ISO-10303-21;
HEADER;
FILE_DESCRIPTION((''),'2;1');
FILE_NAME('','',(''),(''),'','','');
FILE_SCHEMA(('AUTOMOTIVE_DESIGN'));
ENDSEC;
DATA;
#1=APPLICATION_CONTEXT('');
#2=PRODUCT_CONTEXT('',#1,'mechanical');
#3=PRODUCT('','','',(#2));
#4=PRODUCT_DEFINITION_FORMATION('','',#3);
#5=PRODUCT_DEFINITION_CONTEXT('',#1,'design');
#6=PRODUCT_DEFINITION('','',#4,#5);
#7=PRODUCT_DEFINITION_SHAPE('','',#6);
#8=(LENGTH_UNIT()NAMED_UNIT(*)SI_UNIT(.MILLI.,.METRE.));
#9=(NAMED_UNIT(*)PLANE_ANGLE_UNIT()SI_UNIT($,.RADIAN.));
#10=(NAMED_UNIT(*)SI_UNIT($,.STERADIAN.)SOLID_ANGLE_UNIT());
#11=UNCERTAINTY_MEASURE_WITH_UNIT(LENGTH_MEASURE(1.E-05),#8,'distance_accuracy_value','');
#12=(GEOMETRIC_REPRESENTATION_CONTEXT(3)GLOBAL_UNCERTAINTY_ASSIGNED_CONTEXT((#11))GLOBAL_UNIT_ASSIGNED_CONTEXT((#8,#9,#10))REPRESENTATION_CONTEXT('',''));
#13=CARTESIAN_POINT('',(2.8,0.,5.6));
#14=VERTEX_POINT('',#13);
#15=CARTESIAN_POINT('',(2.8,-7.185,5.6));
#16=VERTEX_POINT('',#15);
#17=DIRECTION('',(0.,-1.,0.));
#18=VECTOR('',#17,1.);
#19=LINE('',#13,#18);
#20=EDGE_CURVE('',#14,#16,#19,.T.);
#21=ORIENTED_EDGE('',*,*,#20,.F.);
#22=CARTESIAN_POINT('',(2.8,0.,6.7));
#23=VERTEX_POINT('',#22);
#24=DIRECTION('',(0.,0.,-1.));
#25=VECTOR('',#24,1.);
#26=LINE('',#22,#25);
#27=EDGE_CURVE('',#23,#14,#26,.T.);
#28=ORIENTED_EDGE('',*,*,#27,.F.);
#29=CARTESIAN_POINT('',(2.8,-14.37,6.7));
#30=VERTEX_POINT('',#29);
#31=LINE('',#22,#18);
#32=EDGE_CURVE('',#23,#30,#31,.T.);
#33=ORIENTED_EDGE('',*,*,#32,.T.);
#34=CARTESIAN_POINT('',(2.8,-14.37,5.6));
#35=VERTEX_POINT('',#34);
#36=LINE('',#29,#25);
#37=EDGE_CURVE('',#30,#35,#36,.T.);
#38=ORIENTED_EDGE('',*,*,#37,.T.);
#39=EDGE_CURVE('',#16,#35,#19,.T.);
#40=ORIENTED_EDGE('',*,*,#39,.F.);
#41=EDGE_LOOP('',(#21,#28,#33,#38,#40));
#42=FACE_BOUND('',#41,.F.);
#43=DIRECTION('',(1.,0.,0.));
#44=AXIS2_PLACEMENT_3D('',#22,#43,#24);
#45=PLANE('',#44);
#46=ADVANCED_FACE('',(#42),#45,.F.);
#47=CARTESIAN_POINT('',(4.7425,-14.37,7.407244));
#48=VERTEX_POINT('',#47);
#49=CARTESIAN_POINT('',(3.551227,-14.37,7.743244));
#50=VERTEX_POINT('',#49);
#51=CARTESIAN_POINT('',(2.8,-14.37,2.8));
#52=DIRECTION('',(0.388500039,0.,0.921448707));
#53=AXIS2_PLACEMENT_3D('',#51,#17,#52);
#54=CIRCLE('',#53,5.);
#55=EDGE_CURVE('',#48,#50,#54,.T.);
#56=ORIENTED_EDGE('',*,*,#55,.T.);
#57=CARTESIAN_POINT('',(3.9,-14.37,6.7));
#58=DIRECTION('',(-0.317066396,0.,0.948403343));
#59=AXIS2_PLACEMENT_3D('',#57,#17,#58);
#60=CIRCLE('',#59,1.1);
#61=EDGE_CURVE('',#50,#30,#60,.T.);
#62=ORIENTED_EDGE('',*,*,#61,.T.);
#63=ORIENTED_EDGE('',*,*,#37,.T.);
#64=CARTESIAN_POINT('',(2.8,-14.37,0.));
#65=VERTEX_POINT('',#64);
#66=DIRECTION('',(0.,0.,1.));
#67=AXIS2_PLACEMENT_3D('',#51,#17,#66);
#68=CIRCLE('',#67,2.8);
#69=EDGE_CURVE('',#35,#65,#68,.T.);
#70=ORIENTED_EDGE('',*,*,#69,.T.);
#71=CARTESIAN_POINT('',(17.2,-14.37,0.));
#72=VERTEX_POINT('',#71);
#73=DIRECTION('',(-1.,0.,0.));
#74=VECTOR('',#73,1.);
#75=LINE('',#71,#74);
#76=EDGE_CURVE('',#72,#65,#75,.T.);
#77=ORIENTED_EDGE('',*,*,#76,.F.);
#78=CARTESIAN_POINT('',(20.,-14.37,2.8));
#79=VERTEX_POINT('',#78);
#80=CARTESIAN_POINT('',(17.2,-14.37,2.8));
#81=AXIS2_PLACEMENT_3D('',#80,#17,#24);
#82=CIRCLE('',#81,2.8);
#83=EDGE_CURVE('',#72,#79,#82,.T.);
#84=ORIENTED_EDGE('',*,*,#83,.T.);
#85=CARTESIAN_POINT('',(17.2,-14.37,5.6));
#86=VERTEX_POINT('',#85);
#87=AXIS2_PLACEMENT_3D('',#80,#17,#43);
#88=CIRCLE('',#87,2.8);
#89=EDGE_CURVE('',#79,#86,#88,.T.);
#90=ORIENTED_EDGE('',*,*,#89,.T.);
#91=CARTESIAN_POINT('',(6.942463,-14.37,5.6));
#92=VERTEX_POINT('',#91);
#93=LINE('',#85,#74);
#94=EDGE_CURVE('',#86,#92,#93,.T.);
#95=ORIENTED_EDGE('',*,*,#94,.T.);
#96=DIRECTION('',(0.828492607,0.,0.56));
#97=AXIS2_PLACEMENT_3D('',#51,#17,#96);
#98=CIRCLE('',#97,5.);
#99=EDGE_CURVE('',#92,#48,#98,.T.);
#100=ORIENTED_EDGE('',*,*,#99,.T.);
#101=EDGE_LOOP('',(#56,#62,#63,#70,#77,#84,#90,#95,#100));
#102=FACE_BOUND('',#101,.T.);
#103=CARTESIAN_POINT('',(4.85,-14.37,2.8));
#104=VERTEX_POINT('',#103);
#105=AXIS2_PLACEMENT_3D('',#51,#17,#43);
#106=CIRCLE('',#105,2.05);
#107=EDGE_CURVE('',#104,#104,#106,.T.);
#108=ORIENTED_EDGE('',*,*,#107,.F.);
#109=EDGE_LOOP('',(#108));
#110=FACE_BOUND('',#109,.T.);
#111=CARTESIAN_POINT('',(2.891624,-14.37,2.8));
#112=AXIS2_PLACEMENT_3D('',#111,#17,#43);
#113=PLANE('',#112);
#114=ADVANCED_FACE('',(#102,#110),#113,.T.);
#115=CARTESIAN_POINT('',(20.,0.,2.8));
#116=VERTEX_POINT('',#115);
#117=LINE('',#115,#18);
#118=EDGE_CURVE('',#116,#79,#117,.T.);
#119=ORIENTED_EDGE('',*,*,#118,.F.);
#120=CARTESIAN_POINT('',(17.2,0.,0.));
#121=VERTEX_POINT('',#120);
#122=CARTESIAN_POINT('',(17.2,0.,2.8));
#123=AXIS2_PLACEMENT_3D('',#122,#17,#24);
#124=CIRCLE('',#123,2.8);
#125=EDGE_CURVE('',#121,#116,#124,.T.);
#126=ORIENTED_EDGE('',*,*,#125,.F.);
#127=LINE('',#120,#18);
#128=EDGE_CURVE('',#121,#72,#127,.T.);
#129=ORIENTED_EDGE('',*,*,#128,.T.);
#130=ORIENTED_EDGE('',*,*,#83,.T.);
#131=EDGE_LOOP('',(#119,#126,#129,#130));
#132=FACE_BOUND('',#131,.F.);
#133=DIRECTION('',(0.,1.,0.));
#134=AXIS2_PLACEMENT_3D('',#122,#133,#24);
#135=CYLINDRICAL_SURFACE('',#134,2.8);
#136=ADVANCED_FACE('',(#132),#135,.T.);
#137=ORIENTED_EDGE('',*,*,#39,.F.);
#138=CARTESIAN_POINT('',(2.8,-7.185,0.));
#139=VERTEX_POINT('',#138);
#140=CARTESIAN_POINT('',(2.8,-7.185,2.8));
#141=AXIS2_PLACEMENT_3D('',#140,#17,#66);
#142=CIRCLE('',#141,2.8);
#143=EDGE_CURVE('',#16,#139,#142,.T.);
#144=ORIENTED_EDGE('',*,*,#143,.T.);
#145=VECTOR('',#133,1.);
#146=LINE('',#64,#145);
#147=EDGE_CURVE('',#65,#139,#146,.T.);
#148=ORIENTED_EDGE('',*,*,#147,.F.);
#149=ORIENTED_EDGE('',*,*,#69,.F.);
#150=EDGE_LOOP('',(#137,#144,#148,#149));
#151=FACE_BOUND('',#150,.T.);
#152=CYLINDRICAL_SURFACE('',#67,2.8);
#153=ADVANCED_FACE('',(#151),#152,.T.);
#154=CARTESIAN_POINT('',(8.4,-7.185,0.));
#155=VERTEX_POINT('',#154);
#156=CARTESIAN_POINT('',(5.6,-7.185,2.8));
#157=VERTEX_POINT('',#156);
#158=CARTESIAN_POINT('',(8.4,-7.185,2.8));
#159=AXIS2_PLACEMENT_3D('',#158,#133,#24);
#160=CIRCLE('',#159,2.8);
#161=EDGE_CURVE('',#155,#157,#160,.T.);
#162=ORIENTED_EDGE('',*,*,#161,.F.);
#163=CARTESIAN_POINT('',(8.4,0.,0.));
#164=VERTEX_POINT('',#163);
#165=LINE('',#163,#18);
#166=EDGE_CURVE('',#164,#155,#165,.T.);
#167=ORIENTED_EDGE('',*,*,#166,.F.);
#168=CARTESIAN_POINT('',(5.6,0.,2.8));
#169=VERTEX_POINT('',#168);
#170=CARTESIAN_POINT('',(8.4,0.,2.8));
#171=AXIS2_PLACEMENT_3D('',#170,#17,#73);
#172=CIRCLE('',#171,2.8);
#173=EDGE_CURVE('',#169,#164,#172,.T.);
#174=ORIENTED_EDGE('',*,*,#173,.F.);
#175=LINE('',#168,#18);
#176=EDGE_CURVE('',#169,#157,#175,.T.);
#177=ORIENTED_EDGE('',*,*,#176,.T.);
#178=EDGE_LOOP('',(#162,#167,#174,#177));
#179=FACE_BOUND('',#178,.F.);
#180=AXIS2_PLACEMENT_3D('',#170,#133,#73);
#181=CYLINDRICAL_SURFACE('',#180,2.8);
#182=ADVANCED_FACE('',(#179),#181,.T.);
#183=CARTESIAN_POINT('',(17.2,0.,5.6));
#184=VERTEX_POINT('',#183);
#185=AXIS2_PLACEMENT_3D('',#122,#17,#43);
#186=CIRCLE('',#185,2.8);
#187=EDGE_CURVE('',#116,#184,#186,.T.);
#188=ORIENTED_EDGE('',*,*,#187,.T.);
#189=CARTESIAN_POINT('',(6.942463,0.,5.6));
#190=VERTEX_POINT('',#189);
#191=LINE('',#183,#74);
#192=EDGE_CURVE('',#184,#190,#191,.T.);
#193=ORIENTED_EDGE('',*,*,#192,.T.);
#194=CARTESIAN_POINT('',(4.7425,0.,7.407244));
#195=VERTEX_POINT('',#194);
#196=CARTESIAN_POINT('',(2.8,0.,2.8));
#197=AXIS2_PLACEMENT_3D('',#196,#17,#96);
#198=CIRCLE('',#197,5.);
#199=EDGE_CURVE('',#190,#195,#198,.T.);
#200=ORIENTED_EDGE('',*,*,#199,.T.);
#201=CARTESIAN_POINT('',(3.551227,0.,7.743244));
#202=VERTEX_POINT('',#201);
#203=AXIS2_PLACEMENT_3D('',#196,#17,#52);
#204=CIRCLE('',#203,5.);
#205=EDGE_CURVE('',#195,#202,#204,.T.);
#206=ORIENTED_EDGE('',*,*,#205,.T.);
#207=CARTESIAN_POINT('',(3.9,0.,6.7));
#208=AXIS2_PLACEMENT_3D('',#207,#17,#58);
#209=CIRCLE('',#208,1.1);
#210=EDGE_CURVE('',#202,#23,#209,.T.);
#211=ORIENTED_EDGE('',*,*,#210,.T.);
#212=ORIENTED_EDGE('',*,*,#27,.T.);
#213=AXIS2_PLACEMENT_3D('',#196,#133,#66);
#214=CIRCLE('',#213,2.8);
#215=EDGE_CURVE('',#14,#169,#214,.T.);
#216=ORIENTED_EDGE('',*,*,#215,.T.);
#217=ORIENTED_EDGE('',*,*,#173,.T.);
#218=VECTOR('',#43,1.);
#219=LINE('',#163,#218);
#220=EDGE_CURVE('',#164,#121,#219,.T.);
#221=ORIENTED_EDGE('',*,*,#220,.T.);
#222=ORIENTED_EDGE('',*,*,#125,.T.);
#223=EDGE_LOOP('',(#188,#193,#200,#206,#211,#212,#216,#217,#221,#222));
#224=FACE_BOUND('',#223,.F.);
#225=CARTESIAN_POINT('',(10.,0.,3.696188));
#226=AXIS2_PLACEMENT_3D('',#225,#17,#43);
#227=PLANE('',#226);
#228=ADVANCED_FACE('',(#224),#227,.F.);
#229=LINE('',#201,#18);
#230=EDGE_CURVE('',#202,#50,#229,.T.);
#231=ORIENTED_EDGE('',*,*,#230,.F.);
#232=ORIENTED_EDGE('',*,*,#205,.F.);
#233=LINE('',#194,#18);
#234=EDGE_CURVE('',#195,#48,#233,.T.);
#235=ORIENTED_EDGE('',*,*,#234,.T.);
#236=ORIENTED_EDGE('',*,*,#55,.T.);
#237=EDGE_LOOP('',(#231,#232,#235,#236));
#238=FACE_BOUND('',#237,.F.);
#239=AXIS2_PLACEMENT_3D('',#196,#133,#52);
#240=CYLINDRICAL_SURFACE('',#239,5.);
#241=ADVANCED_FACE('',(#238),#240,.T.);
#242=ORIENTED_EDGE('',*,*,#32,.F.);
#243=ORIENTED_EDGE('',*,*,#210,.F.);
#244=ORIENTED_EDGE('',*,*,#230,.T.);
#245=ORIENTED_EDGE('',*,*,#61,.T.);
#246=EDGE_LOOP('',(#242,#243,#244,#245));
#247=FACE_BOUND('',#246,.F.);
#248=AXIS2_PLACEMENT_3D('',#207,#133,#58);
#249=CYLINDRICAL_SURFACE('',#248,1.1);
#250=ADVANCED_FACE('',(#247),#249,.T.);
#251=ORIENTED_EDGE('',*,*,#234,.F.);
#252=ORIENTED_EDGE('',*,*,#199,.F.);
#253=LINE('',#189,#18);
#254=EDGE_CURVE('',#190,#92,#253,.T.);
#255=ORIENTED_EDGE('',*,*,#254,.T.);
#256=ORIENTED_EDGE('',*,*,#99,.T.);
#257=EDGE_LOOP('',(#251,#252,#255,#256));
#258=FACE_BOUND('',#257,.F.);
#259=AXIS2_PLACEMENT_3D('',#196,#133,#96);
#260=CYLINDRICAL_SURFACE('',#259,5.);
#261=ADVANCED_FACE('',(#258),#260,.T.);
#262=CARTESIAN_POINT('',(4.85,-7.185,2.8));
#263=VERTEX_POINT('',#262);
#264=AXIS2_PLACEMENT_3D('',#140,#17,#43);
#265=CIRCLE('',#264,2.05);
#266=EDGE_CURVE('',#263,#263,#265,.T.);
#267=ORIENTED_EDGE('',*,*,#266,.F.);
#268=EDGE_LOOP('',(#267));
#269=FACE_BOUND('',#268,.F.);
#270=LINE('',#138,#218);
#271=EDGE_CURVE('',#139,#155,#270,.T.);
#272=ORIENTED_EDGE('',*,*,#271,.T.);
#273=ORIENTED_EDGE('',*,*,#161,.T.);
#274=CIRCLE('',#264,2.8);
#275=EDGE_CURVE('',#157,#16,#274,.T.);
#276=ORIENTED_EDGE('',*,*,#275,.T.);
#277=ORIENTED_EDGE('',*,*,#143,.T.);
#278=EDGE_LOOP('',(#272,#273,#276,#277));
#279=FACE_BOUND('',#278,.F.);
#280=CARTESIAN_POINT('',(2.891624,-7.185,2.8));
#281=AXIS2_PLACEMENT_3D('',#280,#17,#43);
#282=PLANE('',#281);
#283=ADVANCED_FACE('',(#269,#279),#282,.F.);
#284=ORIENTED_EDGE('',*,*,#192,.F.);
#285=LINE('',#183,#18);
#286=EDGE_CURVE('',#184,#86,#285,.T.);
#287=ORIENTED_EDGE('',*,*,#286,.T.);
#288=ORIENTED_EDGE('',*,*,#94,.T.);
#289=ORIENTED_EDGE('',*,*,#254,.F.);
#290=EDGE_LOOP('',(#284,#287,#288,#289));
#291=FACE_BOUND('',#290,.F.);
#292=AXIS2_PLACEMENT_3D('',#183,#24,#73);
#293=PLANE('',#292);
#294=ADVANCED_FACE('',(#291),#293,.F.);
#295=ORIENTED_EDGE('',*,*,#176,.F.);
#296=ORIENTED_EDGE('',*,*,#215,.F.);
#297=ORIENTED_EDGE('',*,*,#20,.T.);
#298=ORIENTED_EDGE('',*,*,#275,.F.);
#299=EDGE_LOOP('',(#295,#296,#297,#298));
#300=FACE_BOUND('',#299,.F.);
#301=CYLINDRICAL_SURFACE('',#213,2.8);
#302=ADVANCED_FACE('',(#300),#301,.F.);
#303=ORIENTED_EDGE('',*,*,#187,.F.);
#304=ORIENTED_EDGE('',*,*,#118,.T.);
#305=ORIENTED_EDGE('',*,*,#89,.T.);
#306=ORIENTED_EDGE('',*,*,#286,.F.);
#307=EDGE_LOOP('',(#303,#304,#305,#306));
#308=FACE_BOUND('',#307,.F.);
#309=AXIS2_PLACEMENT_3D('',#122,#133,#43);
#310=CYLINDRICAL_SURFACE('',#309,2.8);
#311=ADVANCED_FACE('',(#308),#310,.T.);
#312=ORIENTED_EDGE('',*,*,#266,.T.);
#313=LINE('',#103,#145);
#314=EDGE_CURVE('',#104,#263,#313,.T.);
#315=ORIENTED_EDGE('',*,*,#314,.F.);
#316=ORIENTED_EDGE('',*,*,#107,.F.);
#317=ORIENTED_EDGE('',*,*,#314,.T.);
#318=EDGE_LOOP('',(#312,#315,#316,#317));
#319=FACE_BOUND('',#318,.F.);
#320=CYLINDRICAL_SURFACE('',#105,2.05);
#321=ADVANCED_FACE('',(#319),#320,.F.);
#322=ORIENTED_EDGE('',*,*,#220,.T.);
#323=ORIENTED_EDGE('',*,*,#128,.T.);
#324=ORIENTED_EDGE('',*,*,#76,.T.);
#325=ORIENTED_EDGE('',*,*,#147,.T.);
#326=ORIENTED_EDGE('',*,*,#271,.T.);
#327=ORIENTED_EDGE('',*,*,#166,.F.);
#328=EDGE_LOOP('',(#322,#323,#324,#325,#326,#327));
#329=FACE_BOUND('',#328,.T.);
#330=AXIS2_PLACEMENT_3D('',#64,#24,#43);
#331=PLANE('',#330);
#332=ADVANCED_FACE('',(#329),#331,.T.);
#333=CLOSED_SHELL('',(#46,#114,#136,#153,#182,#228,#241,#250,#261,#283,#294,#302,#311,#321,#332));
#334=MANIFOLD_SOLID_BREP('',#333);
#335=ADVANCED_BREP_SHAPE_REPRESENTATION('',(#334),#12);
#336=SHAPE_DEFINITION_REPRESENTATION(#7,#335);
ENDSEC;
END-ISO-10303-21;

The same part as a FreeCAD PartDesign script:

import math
import FreeCAD as App
import Part
import Sketcher
from FreeCAD import Vector

doc = App.newDocument("Part")
body = doc.addObject("PartDesign::Body", "Body")

sketch1 = doc.addObject("Sketcher::SketchObject", "Sketch")
body.addObject(sketch1)
sketch1.AttachmentSupport = (doc.XZ_Plane, [""])
sketch1.MapMode = "FlatFace"
sketch1.addGeometry(Part.ArcOfCircle(Part.Circle(Vector(8.4, 2.8, 0), Vector(0, 0, 1), 2.8), math.radians(180), math.radians(270)), False)
sketch1.addGeometry(Part.LineSegment(Vector(8.4, 0, 0), Vector(17.2, 0, 0)), False)
sketch1.addGeometry(Part.ArcOfCircle(Part.Circle(Vector(17.2, 2.8, 0), Vector(0, 0, 1), 2.8), math.radians(-90), math.radians(0)), False)
sketch1.addGeometry(Part.ArcOfCircle(Part.Circle(Vector(17.2, 2.8, 0), Vector(0, 0, 1), 2.8), math.radians(0), math.radians(90)), False)
sketch1.addGeometry(Part.LineSegment(Vector(17.2, 5.6, 0), Vector(6.942463, 5.6, 0)), False)
sketch1.addGeometry(Part.ArcOfCircle(Part.Circle(Vector(2.8, 2.8, 0), Vector(0, 0, 1), 5), math.radians(34.055798), math.radians(67.1388)), False)
sketch1.addGeometry(Part.ArcOfCircle(Part.Circle(Vector(2.8, 2.8, 0), Vector(0, 0, 1), 5), math.radians(67.1388), math.radians(81.358852)), False)
sketch1.addGeometry(Part.ArcOfCircle(Part.Circle(Vector(3.9, 6.7, 0), Vector(0, 0, 1), 1.1), math.radians(108.485605), math.radians(180)), False)
sketch1.addGeometry(Part.LineSegment(Vector(2.8, 6.7, 0), Vector(2.8, 5.6, 0)), False)
sketch1.addGeometry(Part.ArcOfCircle(Part.Circle(Vector(2.8, 2.8, 0), Vector(0, 0, 1), 2.8), math.radians(0), math.radians(90)), False)
sketch1.addConstraint(Sketcher.Constraint("Tangent", 0, 2, 1, 1))
sketch1.addConstraint(Sketcher.Constraint("Tangent", 1, 2, 2, 1))
sketch1.addConstraint(Sketcher.Constraint("Tangent", 2, 2, 3, 1))
sketch1.addConstraint(Sketcher.Constraint("Tangent", 3, 2, 4, 1))
sketch1.addConstraint(Sketcher.Constraint("Coincident", 4, 2, 5, 1))
sketch1.addConstraint(Sketcher.Constraint("Tangent", 5, 2, 6, 1))
sketch1.addConstraint(Sketcher.Constraint("Coincident", 6, 2, 7, 1))
sketch1.addConstraint(Sketcher.Constraint("Tangent", 7, 2, 8, 1))
sketch1.addConstraint(Sketcher.Constraint("Coincident", 8, 2, 9, 2))
sketch1.addConstraint(Sketcher.Constraint("Tangent", 9, 1, 0, 1))
sketch1.addConstraint(Sketcher.Constraint("Horizontal", 1))
sketch1.addConstraint(Sketcher.Constraint("Horizontal", 4))
sketch1.addConstraint(Sketcher.Constraint("Vertical", 8))
sketch1.addConstraint(Sketcher.Constraint("Coincident", 9, 3, 5, 3))
sketch1.addConstraint(Sketcher.Constraint("Equal", 0, 2))
sketch1.addConstraint(Sketcher.Constraint("Equal", 2, 3))
sketch1.addConstraint(Sketcher.Constraint("Equal", 5, 6))
sketch1.addConstraint(Sketcher.Constraint("Equal", 3, 9))
sketch1.addConstraint(Sketcher.Constraint("PointOnObject", 0, 2, -1))
sketch1.addConstraint(Sketcher.Constraint("Horizontal", 3, 3, 5, 3))
sketch1.addConstraint(Sketcher.Constraint("Horizontal", 9, 3, 2, 2))
sketch1.addConstraint(Sketcher.Constraint("Vertical", 9, 3, 7, 2))
sketch1.addConstraint(Sketcher.Constraint("Radius", 5, 5.0))
sketch1.addConstraint(Sketcher.Constraint("Radius", 0, 2.8))
sketch1.addConstraint(Sketcher.Constraint("Radius", 7, 1.1))
sketch1.addConstraint(Sketcher.Constraint("DistanceX", 1, 1, 1, 2, 8.8))
sketch1.addConstraint(Sketcher.Constraint("DistanceY", 8, 2, 8, 1, 1.1))
sketch1.addConstraint(Sketcher.Constraint("DistanceX", -1, 1, 2, 2, 20.0))
sketch1.addConstraint(Sketcher.Constraint("DistanceY", 5, 2, 6, 2, 0.336))
pad1 = doc.addObject("PartDesign::Pad", "Pad")
body.addObject(pad1)
pad1.Profile = sketch1
pad1.Length = 14.37

sketch2 = doc.addObject("Sketcher::SketchObject", "Sketch001")
body.addObject(sketch2)
sketch2.AttachmentSupport = (doc.XZ_Plane, [""])
sketch2.MapMode = "FlatFace"
sketch2.AttachmentOffset = App.Placement(Vector(0, 0, 14.37), App.Rotation())
sketch2.addGeometry(Part.ArcOfCircle(Part.Circle(Vector(2.8, 2.8, 0), Vector(0, 0, 1), 2.8), math.radians(90), math.radians(270)), False)
sketch2.addGeometry(Part.LineSegment(Vector(2.8, 0, 0), Vector(8.4, 0, 0)), False)
sketch2.addGeometry(Part.ArcOfCircle(Part.Circle(Vector(8.4, 2.8, 0), Vector(0, 0, 1), 2.8), math.radians(180), math.radians(270)), False)
sketch2.addGeometry(Part.ArcOfCircle(Part.Circle(Vector(2.8, 2.8, 0), Vector(0, 0, 1), 2.8), math.radians(0), math.radians(90)), False)
sketch2.addGeometry(Part.Circle(Vector(2.8, 2.8, 0), Vector(0, 0, 1), 2.05), False)
sketch2.addConstraint(Sketcher.Constraint("Tangent", 0, 2, 1, 1))
sketch2.addConstraint(Sketcher.Constraint("Tangent", 1, 2, 2, 2))
sketch2.addConstraint(Sketcher.Constraint("Tangent", 2, 1, 3, 1))
sketch2.addConstraint(Sketcher.Constraint("Tangent", 3, 2, 0, 1))
sketch2.addConstraint(Sketcher.Constraint("Horizontal", 1))
sketch2.addConstraint(Sketcher.Constraint("Coincident", 4, 3, 0, 3))
sketch2.addConstraint(Sketcher.Constraint("Equal", 0, 2))
sketch2.addConstraint(Sketcher.Constraint("Equal", 2, 3))
sketch2.addConstraint(Sketcher.Constraint("PointOnObject", 0, 2, -1))
sketch2.addConstraint(Sketcher.Constraint("Vertical", 0, 2, 3, 2))
sketch2.addConstraint(Sketcher.Constraint("Diameter", 4, 4.1))
sketch2.addConstraint(Sketcher.Constraint("Radius", 0, 2.8))
sketch2.addConstraint(Sketcher.Constraint("DistanceX", -1, 1, 0, 3, 2.8))
pad2 = doc.addObject("PartDesign::Pad", "Pad001")
body.addObject(pad2)
pad2.Profile = sketch2
pad2.Length = 7.185
pad2.Reversed = True

doc.recompute()
